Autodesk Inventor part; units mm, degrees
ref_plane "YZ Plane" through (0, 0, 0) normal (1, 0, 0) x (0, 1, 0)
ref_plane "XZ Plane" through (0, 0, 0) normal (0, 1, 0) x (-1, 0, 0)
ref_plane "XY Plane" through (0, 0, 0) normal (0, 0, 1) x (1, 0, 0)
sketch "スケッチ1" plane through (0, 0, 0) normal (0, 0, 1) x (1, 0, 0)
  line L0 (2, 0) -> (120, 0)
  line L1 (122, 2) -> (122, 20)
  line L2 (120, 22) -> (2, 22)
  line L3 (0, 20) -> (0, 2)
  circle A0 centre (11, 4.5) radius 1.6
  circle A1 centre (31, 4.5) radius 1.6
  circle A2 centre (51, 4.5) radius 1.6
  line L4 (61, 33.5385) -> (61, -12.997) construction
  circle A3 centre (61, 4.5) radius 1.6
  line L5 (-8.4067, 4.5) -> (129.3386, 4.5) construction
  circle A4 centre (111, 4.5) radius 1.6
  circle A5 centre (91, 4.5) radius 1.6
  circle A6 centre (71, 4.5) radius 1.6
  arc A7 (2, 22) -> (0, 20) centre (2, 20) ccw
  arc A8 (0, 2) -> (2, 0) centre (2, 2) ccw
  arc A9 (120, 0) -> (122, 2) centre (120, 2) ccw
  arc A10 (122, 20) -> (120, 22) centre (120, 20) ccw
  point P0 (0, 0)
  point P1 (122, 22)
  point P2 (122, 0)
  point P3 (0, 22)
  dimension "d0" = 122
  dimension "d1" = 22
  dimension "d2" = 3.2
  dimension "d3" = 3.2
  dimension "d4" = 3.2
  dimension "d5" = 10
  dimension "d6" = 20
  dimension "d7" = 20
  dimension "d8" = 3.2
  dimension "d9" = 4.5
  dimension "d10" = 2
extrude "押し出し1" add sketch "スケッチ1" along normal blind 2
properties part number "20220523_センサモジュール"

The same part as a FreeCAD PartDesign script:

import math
import FreeCAD as App
import Part
import Sketcher
from FreeCAD import Vector

doc = App.newDocument("Part")
params = doc.addObject("Spreadsheet::Sheet", "Params")
for row, (alias, value) in enumerate([
    ("sketch1_radius", "2 mm"),
    ("sketch1_diameter", "3.2 mm"),
    ("pad1_length", "2 mm"),
], start=1):
    params.set(f"A{row}", alias)
    params.set(f"B{row}", "=" + value)
    params.setAlias(f"B{row}", alias)

body = doc.addObject("PartDesign::Body", "Body")

sketch1 = body.newObject("Sketcher::SketchObject", "Sketch")
sketch1.AttachmentSupport = (doc.getObject("XY_Plane"), [""])
sketch1.MapMode = "FlatFace"
sketch1.addGeometry(Part.ArcOfCircle(Part.Circle(Vector(2, 2, 0), Vector(0, 0, 1), 2), math.radians(180), math.radians(270)), False)
sketch1.addGeometry(Part.LineSegment(Vector(2, 0, 0), Vector(120, 0, 0)), False)
sketch1.addGeometry(Part.ArcOfCircle(Part.Circle(Vector(120, 2, 0), Vector(0, 0, 1), 2), math.radians(-90), math.radians(0)), False)
sketch1.addGeometry(Part.LineSegment(Vector(122, 2, 0), Vector(122, 20, 0)), False)
sketch1.addGeometry(Part.ArcOfCircle(Part.Circle(Vector(120, 20, 0), Vector(0, 0, 1), 2), math.radians(0), math.radians(90)), False)
sketch1.addGeometry(Part.LineSegment(Vector(120, 22, 0), Vector(2, 22, 0)), False)
sketch1.addGeometry(Part.ArcOfCircle(Part.Circle(Vector(2, 20, 0), Vector(0, 0, 1), 2), math.radians(90), math.radians(180)), False)
sketch1.addGeometry(Part.LineSegment(Vector(0, 20, 0), Vector(0, 2, 0)), False)
sketch1.addGeometry(Part.Circle(Vector(11, 4.5, 0), Vector(0, 0, 1), 1.6), False)
sketch1.addGeometry(Part.Circle(Vector(31, 4.5, 0), Vector(0, 0, 1), 1.6), False)
sketch1.addGeometry(Part.Circle(Vector(51, 4.5, 0), Vector(0, 0, 1), 1.6), False)
sketch1.addGeometry(Part.Circle(Vector(61, 4.5, 0), Vector(0, 0, 1), 1.6), False)
sketch1.addGeometry(Part.Circle(Vector(71, 4.5, 0), Vector(0, 0, 1), 1.6), False)
sketch1.addGeometry(Part.Circle(Vector(91, 4.5, 0), Vector(0, 0, 1), 1.6), False)
sketch1.addGeometry(Part.Circle(Vector(111, 4.5, 0), Vector(0, 0, 1), 1.6), False)
sketch1.addConstraint(Sketcher.Constraint("Tangent", 0, 2, 1, 1))
sketch1.addConstraint(Sketcher.Constraint("Tangent", 1, 2, 2, 1))
sketch1.addConstraint(Sketcher.Constraint("Tangent", 2, 2, 3, 1))
sketch1.addConstraint(Sketcher.Constraint("Tangent", 3, 2, 4, 1))
sketch1.addConstraint(Sketcher.Constraint("Tangent", 4, 2, 5, 1))
sketch1.addConstraint(Sketcher.Constraint("Tangent", 5, 2, 6, 1))
sketch1.addConstraint(Sketcher.Constraint("Tangent", 6, 2, 7, 1))
sketch1.addConstraint(Sketcher.Constraint("Tangent", 7, 2, 0, 1))
sketch1.addConstraint(Sketcher.Constraint("Horizontal", 1))
sketch1.addConstraint(Sketcher.Constraint("Vertical", 3))
sketch1.addConstraint(Sketcher.Constraint("Horizontal", 5))
sketch1.addConstraint(Sketcher.Constraint("Vertical", 7))
sketch1.addConstraint(Sketcher.Constraint("Equal", 0, 2))
sketch1.addConstraint(Sketcher.Constraint("Equal", 2, 4))
sketch1.addConstraint(Sketcher.Constraint("Equal", 4, 6))
sketch1.addConstraint(Sketcher.Constraint("Equal", 8, 9))
sketch1.addConstraint(Sketcher.Constraint("Equal", 9, 10))
sketch1.addConstraint(Sketcher.Constraint("Equal", 10, 11))
sketch1.addConstraint(Sketcher.Constraint("Equal", 11, 12))
sketch1.addConstraint(Sketcher.Constraint("Equal", 12, 13))
sketch1.addConstraint(Sketcher.Constraint("Equal", 13, 14))
sketch1.addConstraint(Sketcher.Constraint("PointOnObject", 0, 2, -1))
sketch1.addConstraint(Sketcher.Constraint("PointOnObject", 6, 2, -2))
sketch1.addConstraint(Sketcher.Constraint("Horizontal", 8, 3, 9, 3))
sketch1.addConstraint(Sketcher.Constraint("Horizontal", 9, 3, 10, 3))
sketch1.addConstraint(Sketcher.Constraint("Horizontal", 10, 3, 11, 3))
sketch1.addConstraint(Sketcher.Constraint("Horizontal", 11, 3, 12, 3))
sketch1.addConstraint(Sketcher.Constraint("Horizontal", 12, 3, 13, 3))
sketch1.addConstraint(Sketcher.Constraint("Horizontal", 13, 3, 14, 3))
sketch1.addConstraint(Sketcher.Constraint("Radius", 0, 2.0))
sketch1.addConstraint(Sketcher.Constraint("Diameter", 8, 3.2))
sketch1.addConstraint(Sketcher.Constraint("DistanceY", -1, 1, 4, 3, 20.0))
sketch1.addConstraint(Sketcher.Constraint("DistanceX", -1, 1, 2, 2, 122.0))
sketch1.addConstraint(Sketcher.Constraint("DistanceX", 8, 3, 9, 3, 20.0))
sketch1.addConstraint(Sketcher.Constraint("DistanceX", 9, 3, 10, 3, 20.0))
sketch1.addConstraint(Sketcher.Constraint("DistanceX", 10, 3, 11, 3, 10.0))
sketch1.addConstraint(Sketcher.Constraint("DistanceX", 11, 3, 12, 3, 10.0))
sketch1.addConstraint(Sketcher.Constraint("DistanceX", 12, 3, 13, 3, 20.0))
sketch1.addConstraint(Sketcher.Constraint("DistanceX", 13, 3, 14, 3, 20.0))
sketch1.addConstraint(Sketcher.Constraint("DistanceY", -1, 1, 8, 3, 4.5))
sketch1.addConstraint(Sketcher.Constraint("DistanceX", -1, 1, 8, 3, 11.0))
sketch1.setExpression("Constraints[29]", "Params.sketch1_radius")
sketch1.setExpression("Constraints[30]", "Params.sketch1_diameter")
pad1 = body.newObject("PartDesign::Pad", "Pad")
pad1.Profile = sketch1
pad1.setExpression("Length", "Params.pad1_length")

doc.recompute()
